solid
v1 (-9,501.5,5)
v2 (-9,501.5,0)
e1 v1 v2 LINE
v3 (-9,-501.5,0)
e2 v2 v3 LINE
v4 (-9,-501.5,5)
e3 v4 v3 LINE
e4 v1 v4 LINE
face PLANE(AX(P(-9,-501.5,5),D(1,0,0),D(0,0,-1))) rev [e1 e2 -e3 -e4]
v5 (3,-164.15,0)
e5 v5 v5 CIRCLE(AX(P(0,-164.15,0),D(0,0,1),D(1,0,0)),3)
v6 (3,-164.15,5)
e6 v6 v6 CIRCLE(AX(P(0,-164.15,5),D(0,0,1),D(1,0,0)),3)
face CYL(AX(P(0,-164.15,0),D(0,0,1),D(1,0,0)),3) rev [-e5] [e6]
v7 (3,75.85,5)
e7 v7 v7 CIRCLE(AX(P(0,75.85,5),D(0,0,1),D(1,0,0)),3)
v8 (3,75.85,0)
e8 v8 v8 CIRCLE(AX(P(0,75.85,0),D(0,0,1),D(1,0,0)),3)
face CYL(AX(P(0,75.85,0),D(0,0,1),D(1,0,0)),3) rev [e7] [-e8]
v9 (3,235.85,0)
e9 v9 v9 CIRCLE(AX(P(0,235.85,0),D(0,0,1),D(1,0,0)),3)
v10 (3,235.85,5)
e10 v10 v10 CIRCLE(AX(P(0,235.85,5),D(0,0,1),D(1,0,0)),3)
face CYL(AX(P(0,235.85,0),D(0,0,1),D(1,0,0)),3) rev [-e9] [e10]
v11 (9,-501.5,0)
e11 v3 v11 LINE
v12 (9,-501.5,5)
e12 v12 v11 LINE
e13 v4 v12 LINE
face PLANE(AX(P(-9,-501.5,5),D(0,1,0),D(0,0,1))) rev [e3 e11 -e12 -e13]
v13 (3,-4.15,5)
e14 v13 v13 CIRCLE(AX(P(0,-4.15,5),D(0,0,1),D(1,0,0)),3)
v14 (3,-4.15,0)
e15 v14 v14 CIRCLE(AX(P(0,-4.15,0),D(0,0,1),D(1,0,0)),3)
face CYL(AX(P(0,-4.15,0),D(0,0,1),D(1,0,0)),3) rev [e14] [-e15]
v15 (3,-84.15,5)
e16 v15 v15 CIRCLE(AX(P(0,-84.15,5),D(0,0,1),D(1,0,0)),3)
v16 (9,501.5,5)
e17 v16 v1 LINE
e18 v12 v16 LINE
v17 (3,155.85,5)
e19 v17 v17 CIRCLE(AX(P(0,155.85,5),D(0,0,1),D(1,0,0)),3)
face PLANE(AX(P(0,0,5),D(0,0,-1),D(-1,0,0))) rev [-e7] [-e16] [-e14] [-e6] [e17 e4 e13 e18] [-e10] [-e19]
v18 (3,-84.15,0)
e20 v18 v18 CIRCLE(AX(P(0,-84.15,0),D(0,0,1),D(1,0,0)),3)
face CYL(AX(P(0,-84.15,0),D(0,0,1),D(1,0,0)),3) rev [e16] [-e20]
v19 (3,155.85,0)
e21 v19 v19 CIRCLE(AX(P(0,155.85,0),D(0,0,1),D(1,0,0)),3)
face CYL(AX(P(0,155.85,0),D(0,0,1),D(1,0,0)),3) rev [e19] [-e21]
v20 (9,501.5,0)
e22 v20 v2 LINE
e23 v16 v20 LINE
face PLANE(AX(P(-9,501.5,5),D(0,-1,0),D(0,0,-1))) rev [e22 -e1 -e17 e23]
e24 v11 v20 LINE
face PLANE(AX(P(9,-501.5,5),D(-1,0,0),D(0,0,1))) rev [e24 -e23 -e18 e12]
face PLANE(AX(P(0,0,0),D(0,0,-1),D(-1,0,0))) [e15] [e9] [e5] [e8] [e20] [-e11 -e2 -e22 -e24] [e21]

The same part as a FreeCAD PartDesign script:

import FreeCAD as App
import Part
import Sketcher
Q = App.Units.Quantity

doc = App.newDocument("Part")
body = doc.addObject("PartDesign::Body", "Body")

# Sketch on XY plane
sketch1 = body.newObject("Sketcher::SketchObject", "Sketch")
sketch1.AttachmentSupport = (doc.getObject("XY_Plane"), [""])
sketch1.MapMode = "FlatFace"
sketch1.addGeometry(Part.LineSegment(App.Vector(-9, 501.5, 0), App.Vector(-9, -501.5, 0)), False)
sketch1.addGeometry(Part.LineSegment(App.Vector(-9, -501.5, 0), App.Vector(9, -501.5, 0)), False)
sketch1.addGeometry(Part.LineSegment(App.Vector(9, -501.5, 0), App.Vector(9, 501.5, 0)), False)
sketch1.addGeometry(Part.LineSegment(App.Vector(9, 501.5, 0), App.Vector(-9, 501.5, 0)), False)
sketch1.addConstraint(Sketcher.Constraint("Coincident", 0, 2, 1, 1))
sketch1.addConstraint(Sketcher.Constraint("Coincident", 1, 2, 2, 1))
sketch1.addConstraint(Sketcher.Constraint("Coincident", 2, 2, 3, 1))
sketch1.addConstraint(Sketcher.Constraint("Coincident", 3, 2, 0, 1))
sketch1.addConstraint(Sketcher.Constraint("Vertical", 0))
sketch1.addConstraint(Sketcher.Constraint("Horizontal", 1))
sketch1.addConstraint(Sketcher.Constraint("Vertical", 2))
sketch1.addConstraint(Sketcher.Constraint("Horizontal", 3))
sketch1.addConstraint(Sketcher.Constraint("Symmetric", 0, 2, 2, 2, -1, 1))
sketch1.addConstraint(Sketcher.Constraint("DistanceX", 1, 1, 1, 2, Q("18 mm")))
sketch1.addConstraint(Sketcher.Constraint("DistanceY", 0, 2, 0, 1, Q("1003 mm")))
pad1 = body.newObject("PartDesign::Pad", "Pad")
pad1.Profile = sketch1
pad1.Length = 5

# Sketch on XY plane
sketch2 = body.newObject("Sketcher::SketchObject", "Sketch001")
sketch2.AttachmentSupport = (doc.getObject("XY_Plane"), [""])
sketch2.MapMode = "FlatFace"
sketch2.AttachmentOffset = App.Placement(App.Vector(0, 0, 5), App.Rotation())
sketch2.addGeometry(Part.Circle(App.Vector(0, 235.85, 0), App.Vector(0, 0, 1), 3), False)
sketch2.addConstraint(Sketcher.Constraint("PointOnObject", 0, 3, -2))
sketch2.addConstraint(Sketcher.Constraint("Diameter", 0, Q("6 mm")))
sketch2.addConstraint(Sketcher.Constraint("DistanceY", -1, 1, 0, 3, Q("235.85 mm")))
pocket1 = body.newObject("PartDesign::Pocket", "Pocket")
pocket1.Profile = sketch2
pocket1.Length = 5
doc.recompute()

linearpattern = body.newObject("PartDesign::LinearPattern", "LinearPattern")
linearpattern.Originals = [pocket1]
linearpattern.Direction = (doc.getObject("Y_Axis"), [""])
linearpattern.Mode = "offset"
linearpattern.Offset = 80
linearpattern.Occurrences = 6
linearpattern.Reversed = True
body.Tip = linearpattern

doc.recompute()
